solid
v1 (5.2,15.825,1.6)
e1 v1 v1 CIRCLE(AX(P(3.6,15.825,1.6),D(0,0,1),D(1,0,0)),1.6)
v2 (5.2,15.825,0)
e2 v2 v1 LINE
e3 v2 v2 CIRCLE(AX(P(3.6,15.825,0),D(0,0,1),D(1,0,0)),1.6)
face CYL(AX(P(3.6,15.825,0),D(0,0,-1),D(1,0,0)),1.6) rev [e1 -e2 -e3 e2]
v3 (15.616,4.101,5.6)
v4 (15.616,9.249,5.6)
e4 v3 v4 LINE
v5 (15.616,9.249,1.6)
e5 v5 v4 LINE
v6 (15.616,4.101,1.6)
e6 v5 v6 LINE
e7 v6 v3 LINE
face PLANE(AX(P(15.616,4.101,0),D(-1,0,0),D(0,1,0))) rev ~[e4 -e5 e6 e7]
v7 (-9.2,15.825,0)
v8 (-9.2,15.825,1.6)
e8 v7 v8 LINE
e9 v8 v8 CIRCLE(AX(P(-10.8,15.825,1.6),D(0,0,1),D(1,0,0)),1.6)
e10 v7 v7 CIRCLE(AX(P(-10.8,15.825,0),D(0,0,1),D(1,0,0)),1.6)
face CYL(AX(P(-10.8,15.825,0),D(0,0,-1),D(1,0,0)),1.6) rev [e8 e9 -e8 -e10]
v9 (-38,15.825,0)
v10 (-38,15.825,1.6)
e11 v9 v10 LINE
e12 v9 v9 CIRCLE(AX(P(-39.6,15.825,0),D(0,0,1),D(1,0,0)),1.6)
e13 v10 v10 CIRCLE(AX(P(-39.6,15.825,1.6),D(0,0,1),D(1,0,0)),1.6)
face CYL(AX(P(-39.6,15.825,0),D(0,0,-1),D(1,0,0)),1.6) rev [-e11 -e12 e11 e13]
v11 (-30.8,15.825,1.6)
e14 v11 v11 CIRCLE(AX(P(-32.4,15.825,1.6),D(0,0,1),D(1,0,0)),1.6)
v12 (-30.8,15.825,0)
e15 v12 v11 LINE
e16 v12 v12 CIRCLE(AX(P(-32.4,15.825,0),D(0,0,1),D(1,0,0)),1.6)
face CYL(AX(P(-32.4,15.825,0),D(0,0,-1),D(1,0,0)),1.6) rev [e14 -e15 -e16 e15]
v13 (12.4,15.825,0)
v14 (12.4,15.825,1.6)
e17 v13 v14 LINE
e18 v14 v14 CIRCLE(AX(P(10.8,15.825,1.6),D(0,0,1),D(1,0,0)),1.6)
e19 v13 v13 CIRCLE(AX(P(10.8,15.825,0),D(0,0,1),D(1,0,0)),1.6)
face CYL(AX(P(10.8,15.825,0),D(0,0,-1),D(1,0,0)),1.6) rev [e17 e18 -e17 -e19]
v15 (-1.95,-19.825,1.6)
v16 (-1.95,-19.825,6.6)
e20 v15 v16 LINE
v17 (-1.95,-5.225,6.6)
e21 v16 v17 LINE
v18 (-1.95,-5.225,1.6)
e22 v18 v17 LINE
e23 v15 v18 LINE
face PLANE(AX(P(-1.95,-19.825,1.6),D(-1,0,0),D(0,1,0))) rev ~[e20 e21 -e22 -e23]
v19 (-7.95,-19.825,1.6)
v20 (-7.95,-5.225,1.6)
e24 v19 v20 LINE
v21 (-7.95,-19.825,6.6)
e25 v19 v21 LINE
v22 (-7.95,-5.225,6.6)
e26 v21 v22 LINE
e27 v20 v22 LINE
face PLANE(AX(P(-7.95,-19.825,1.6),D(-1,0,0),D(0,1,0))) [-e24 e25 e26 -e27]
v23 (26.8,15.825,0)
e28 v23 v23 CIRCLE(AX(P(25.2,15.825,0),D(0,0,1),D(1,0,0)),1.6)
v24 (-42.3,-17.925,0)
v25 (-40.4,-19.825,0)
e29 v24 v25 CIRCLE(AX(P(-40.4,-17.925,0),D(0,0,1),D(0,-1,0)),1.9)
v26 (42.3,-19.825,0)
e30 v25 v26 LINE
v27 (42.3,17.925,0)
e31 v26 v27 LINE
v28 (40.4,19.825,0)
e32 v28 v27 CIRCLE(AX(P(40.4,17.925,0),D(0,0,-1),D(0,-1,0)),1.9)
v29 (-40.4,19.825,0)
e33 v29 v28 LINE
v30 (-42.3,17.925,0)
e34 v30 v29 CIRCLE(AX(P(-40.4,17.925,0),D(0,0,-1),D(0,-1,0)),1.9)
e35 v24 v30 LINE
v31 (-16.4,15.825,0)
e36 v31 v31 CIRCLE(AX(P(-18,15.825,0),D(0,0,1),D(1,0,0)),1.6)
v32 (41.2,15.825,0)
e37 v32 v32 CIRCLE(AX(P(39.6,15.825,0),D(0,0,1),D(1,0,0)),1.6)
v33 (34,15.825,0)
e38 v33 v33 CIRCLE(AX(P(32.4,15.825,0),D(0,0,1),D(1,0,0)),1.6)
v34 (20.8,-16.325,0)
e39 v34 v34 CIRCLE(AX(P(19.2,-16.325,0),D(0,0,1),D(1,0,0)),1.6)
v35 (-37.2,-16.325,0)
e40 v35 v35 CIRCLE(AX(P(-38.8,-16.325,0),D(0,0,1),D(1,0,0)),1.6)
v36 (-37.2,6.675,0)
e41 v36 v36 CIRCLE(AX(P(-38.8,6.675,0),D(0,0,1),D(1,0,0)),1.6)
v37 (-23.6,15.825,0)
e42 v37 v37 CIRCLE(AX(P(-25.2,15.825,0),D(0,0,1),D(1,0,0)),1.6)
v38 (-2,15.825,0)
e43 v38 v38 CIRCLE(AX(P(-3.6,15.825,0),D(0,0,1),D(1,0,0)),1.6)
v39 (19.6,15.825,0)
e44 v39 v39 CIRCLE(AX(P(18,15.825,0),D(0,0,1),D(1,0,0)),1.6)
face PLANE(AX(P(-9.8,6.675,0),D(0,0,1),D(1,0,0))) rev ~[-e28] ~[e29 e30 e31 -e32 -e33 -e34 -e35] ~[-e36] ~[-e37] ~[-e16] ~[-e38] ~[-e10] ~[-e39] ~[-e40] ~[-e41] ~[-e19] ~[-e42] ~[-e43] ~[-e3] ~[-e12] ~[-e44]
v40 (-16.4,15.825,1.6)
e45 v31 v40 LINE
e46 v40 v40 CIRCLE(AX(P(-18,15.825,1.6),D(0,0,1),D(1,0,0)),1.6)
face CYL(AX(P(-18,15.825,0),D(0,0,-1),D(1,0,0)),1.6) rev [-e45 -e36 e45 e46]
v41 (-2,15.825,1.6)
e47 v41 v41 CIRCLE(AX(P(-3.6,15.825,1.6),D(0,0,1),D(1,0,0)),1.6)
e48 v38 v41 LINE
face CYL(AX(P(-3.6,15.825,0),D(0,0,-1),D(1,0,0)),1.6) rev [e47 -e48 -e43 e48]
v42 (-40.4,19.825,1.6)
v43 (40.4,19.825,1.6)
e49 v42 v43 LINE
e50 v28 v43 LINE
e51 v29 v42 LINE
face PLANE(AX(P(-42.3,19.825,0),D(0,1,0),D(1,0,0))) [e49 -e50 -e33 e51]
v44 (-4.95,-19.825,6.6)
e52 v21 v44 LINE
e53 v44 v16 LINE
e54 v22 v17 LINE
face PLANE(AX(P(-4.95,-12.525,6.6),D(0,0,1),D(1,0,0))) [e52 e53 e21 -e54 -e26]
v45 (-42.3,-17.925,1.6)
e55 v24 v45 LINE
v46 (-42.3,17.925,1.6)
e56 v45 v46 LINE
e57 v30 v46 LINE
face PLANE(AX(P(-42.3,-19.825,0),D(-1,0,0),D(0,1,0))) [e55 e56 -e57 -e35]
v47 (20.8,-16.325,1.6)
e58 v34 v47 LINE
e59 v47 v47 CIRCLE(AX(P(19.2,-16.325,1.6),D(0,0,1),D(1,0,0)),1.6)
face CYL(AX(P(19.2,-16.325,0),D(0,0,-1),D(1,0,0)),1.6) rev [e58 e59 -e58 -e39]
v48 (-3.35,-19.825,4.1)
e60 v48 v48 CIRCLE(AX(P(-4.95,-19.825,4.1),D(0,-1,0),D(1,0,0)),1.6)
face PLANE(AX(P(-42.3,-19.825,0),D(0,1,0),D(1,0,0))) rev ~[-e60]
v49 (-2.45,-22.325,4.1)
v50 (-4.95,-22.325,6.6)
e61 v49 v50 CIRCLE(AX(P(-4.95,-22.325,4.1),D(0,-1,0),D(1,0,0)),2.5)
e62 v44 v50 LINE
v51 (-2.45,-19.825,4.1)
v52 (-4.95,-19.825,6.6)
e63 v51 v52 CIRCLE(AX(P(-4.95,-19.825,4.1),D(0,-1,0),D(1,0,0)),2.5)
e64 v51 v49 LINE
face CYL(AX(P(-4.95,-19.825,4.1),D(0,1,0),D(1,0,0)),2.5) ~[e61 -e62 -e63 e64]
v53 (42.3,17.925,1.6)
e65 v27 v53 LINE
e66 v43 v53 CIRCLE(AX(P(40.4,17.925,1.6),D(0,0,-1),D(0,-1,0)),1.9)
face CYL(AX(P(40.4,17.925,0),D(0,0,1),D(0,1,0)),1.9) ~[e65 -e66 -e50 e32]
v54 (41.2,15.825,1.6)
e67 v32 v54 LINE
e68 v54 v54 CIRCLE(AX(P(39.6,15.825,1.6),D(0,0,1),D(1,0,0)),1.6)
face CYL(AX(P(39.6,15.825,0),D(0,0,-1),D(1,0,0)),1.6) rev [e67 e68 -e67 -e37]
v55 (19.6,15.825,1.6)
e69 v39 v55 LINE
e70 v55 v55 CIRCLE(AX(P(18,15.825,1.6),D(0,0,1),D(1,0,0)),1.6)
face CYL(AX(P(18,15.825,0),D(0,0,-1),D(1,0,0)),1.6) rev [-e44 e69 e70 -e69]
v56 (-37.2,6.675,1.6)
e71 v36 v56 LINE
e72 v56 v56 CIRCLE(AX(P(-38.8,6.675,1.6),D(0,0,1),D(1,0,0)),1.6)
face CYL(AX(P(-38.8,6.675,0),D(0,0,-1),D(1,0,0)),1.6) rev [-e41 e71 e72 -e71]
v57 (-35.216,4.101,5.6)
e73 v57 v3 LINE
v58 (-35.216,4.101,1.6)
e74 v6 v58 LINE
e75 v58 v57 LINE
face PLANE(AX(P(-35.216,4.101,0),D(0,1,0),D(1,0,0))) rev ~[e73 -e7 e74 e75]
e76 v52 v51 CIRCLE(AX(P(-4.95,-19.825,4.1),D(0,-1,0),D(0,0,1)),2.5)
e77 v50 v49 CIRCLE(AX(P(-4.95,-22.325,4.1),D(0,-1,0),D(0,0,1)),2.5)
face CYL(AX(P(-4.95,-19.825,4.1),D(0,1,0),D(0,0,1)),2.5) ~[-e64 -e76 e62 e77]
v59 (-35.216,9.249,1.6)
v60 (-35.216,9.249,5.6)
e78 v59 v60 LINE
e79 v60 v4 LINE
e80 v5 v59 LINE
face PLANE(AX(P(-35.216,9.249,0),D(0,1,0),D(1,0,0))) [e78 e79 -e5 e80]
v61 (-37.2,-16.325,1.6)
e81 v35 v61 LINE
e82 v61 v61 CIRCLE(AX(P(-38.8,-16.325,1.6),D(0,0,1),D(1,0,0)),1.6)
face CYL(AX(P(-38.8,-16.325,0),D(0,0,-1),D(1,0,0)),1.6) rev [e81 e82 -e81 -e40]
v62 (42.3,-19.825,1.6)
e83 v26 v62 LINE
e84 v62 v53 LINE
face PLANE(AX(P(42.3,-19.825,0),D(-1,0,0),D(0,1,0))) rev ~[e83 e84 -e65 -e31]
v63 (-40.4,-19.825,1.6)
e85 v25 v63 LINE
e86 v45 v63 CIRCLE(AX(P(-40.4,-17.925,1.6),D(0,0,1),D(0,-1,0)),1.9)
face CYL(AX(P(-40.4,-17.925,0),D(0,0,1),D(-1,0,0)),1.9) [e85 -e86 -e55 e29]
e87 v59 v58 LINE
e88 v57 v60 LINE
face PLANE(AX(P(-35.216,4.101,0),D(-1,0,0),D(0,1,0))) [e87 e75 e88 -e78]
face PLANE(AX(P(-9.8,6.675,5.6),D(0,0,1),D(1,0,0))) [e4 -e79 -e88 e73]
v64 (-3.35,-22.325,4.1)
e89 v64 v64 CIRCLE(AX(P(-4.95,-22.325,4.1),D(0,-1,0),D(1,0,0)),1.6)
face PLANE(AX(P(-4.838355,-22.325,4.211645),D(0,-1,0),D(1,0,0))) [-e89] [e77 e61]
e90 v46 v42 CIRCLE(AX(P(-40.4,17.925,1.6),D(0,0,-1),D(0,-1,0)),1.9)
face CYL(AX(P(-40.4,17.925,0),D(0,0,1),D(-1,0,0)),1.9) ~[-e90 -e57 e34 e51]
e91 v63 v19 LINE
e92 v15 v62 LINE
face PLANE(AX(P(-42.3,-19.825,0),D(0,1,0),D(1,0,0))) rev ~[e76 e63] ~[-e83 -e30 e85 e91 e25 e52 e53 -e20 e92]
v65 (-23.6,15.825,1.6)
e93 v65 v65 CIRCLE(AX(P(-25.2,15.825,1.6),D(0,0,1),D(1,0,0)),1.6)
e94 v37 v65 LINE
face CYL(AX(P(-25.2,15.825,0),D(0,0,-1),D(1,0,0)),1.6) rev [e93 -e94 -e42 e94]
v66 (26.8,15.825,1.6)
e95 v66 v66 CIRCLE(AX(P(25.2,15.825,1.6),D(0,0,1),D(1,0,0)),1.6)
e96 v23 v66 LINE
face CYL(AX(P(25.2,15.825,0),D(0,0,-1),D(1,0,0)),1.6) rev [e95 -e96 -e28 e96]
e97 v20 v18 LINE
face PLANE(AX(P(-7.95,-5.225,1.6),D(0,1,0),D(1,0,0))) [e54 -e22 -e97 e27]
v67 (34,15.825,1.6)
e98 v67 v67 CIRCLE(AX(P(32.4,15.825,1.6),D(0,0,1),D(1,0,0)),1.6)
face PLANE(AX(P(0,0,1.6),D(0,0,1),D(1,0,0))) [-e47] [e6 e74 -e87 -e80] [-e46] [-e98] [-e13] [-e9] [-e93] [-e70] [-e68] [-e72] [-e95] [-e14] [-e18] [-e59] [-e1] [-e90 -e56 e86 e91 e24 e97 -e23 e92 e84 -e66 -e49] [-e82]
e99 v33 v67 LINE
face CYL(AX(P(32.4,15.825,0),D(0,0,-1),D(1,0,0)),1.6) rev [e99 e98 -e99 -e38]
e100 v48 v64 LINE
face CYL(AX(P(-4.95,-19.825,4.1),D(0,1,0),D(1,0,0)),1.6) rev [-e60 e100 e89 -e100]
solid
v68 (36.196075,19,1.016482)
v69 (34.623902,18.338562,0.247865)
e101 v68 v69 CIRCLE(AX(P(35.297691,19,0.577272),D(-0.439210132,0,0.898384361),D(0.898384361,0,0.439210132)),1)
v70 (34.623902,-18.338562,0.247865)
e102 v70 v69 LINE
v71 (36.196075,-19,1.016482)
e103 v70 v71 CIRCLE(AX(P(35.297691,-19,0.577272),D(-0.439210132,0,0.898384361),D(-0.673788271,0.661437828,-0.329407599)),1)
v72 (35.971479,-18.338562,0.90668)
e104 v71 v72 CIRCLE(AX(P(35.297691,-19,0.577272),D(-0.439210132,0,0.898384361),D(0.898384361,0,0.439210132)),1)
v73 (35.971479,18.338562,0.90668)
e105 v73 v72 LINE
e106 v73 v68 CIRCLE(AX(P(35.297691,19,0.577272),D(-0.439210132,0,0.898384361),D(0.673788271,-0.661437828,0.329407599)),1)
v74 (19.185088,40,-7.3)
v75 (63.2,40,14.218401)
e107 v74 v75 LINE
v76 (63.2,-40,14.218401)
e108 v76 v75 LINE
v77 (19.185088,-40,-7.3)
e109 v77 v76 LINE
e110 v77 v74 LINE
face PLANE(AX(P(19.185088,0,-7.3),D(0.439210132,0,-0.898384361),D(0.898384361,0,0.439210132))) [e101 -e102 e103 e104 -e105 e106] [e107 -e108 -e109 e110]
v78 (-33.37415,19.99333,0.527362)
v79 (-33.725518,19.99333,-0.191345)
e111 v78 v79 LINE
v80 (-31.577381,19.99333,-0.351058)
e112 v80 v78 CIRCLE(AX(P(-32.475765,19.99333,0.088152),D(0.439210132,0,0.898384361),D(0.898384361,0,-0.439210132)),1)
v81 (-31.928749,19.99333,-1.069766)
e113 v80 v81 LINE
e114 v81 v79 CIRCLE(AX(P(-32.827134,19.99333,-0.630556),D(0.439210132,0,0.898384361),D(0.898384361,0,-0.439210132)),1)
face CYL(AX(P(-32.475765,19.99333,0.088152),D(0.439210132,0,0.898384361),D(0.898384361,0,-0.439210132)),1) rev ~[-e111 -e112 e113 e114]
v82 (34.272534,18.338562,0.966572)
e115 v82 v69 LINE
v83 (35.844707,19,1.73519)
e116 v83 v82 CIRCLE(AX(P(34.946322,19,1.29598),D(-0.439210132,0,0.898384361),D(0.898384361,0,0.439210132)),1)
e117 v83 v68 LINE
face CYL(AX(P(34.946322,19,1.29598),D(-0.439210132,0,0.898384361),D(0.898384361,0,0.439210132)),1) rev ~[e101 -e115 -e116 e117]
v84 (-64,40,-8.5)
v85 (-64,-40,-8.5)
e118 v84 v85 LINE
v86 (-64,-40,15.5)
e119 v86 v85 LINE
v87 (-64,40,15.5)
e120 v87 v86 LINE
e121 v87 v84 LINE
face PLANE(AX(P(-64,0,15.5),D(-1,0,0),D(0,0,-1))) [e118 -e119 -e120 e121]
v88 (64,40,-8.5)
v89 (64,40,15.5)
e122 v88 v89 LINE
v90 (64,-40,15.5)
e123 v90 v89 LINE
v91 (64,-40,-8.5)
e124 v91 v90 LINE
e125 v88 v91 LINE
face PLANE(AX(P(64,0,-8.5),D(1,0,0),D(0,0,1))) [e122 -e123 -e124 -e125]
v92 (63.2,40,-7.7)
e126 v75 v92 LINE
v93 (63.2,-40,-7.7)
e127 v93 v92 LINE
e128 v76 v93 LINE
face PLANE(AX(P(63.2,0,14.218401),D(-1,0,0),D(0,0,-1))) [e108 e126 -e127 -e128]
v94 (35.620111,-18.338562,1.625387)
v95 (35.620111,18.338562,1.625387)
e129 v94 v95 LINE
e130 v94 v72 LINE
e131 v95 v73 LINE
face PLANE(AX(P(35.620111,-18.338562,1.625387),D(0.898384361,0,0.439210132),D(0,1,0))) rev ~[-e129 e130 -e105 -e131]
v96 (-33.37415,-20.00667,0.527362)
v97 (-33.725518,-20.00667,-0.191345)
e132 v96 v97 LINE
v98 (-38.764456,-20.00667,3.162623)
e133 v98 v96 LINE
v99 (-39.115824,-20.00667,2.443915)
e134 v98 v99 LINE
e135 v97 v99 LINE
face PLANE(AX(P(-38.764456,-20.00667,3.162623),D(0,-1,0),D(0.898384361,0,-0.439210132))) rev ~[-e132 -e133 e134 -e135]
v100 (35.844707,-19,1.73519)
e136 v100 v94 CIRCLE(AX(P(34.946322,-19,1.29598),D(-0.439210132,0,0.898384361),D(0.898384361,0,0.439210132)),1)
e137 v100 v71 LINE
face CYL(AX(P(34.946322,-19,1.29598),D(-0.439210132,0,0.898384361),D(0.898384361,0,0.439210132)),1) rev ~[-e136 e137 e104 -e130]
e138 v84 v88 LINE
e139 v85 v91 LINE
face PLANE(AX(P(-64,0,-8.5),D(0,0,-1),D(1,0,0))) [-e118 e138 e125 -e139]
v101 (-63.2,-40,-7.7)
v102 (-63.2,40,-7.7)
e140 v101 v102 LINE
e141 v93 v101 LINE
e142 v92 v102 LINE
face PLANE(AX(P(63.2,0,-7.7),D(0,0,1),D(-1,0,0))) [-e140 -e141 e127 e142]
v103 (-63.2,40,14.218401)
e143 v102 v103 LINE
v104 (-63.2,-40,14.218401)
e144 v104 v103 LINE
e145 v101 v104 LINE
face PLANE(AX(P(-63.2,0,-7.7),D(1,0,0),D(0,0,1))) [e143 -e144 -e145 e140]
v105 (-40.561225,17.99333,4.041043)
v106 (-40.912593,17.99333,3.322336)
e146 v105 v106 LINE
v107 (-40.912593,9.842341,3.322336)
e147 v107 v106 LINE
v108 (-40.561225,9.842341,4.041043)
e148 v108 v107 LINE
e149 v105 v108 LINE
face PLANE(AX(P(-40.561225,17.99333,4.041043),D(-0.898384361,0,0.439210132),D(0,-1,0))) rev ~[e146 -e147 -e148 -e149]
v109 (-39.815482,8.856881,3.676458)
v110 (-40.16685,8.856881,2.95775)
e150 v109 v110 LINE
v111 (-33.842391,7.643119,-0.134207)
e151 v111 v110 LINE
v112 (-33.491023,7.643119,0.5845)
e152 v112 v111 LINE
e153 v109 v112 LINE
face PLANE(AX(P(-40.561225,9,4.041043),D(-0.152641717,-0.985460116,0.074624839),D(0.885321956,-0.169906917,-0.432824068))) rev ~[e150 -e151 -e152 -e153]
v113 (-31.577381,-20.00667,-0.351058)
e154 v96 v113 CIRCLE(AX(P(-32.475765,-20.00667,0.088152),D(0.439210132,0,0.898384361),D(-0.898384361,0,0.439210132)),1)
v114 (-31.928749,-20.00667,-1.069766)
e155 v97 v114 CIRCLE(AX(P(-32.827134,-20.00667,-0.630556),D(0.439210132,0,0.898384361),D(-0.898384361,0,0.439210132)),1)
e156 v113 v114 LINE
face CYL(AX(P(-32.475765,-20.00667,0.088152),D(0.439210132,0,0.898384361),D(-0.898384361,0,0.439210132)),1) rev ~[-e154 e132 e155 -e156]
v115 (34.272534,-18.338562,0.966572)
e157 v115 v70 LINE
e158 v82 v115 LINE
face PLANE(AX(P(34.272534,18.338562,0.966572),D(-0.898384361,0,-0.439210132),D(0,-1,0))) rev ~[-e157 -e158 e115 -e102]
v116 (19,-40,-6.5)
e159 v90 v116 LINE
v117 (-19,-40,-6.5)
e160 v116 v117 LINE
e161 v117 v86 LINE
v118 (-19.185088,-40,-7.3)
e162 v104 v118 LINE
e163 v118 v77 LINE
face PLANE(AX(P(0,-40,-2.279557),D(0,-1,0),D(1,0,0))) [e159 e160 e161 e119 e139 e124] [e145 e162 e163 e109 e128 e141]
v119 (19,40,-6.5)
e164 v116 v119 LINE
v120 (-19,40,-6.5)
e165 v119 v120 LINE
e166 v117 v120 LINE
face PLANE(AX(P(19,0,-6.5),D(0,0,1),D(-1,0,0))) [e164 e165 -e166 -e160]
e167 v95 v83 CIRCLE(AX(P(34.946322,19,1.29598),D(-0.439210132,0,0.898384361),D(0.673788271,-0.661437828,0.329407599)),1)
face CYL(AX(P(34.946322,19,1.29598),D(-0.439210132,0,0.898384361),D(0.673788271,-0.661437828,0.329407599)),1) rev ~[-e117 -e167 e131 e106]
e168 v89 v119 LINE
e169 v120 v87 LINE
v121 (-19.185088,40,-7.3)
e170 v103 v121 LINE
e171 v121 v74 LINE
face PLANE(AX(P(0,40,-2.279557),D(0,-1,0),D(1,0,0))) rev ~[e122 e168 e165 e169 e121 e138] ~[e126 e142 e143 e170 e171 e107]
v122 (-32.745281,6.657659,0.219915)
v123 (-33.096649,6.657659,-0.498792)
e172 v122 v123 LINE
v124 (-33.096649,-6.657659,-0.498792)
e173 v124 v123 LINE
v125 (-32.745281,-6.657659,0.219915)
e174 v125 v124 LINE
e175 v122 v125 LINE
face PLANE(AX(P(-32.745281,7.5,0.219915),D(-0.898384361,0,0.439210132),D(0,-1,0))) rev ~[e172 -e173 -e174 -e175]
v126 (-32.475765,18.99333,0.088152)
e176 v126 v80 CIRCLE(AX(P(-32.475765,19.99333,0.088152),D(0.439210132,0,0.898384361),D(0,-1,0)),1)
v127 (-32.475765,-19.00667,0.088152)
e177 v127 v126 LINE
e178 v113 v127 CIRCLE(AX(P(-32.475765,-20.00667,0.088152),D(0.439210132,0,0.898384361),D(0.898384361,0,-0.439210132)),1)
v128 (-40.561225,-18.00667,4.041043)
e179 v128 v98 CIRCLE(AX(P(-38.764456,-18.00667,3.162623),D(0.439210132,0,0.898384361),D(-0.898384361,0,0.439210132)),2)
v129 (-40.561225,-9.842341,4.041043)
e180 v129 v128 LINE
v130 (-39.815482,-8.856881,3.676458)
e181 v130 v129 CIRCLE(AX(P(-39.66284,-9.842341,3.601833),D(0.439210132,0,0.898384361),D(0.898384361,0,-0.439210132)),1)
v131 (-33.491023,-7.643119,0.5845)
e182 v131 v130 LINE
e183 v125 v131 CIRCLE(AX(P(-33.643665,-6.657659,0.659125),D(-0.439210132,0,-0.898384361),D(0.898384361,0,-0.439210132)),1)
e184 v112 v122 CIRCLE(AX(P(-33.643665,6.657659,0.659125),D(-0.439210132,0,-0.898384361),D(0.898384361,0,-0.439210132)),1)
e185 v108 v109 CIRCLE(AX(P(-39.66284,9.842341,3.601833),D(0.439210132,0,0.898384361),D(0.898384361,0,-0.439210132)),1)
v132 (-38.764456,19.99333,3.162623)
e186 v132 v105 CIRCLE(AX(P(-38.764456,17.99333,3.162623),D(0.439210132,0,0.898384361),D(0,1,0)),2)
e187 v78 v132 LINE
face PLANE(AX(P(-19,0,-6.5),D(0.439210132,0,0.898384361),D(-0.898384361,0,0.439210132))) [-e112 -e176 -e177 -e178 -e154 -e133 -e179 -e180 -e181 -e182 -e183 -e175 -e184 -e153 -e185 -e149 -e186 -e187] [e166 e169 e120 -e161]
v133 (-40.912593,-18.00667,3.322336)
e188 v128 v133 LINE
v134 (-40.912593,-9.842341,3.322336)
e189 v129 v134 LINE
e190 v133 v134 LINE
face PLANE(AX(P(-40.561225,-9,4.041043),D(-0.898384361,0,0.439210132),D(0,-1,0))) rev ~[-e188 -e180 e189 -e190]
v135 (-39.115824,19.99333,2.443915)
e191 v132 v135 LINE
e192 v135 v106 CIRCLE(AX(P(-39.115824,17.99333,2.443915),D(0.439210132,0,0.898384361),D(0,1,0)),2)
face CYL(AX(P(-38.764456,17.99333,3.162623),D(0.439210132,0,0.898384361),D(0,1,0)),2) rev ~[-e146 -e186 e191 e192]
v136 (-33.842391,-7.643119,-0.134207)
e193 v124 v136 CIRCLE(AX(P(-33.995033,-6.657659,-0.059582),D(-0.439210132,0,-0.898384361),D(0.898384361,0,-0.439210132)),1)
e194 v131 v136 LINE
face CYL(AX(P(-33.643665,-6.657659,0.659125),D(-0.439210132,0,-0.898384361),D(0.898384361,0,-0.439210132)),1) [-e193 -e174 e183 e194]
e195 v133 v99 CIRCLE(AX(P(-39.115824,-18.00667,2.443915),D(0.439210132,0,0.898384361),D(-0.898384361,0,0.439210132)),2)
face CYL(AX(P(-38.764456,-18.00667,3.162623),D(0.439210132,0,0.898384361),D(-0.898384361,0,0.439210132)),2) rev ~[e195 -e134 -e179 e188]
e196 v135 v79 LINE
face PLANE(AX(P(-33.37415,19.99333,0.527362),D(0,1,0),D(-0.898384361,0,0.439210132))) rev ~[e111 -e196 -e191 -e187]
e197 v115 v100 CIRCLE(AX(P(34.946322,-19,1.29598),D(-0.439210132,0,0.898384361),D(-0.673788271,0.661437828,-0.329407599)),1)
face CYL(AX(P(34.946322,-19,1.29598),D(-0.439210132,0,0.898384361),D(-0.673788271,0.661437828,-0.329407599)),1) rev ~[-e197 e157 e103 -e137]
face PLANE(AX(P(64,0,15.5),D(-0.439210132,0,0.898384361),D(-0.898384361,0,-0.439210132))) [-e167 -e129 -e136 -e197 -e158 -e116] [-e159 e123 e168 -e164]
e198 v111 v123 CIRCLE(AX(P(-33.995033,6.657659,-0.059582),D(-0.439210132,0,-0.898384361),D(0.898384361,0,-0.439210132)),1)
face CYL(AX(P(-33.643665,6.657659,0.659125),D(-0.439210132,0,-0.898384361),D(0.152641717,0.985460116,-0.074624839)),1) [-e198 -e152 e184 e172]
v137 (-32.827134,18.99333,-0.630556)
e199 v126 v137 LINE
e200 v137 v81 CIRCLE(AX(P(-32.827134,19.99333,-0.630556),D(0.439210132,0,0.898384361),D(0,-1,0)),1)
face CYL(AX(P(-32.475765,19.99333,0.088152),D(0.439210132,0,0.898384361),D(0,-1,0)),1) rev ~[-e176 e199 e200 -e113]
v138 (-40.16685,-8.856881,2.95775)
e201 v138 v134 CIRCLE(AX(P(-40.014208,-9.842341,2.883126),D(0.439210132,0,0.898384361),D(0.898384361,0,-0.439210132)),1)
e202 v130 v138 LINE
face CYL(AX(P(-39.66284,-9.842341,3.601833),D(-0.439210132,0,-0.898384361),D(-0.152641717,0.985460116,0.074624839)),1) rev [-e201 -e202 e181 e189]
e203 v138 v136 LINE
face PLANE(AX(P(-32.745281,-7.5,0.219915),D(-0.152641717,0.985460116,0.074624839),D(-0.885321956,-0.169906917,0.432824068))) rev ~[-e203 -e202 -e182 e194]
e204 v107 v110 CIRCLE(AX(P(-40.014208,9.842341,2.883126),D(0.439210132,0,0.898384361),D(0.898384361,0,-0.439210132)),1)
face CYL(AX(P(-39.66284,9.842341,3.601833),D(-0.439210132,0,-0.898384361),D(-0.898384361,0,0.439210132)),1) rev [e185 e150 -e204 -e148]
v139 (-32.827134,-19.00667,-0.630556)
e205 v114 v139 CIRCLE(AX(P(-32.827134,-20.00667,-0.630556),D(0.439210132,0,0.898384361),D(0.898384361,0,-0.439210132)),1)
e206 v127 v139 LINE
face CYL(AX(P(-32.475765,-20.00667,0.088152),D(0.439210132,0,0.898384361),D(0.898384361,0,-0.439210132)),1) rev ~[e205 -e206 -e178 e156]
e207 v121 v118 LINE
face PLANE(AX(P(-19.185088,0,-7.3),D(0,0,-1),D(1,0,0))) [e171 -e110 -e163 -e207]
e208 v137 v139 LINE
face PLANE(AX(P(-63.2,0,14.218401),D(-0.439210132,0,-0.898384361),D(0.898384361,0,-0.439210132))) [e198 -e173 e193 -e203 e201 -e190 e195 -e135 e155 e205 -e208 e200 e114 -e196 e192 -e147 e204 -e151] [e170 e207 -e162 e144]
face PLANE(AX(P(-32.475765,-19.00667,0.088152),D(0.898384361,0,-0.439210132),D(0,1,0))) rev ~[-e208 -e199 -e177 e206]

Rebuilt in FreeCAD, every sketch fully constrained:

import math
import FreeCAD as App
import Part
import Sketcher


def edges_at(feature, points):
    """Names of the edges that pass closest to the given points."""
    edges = feature.Shape.Edges
    near = lambda p: min(range(len(edges)), key=lambda i: edges[i].distToShape(Part.Vertex(*p))[0])
    return sorted({f"Edge{near(p) + 1}" for p in points})

doc = App.newDocument("Part")
params = doc.addObject("Spreadsheet::Sheet", "Params")
for row, (alias, value) in enumerate([
    ("sketch1_diameter", "3.2 mm"),
    ("sketch1_width", "84.6 mm"),
    ("sketch1_height", "39.65 mm"),
    ("pad1_length", "1.6 mm"),
    ("fillet_radius", "1.9 mm"),
    ("sketch2_width", "6 mm"),
    ("sketch2_height", "14.6 mm"),
    ("pad2_length", "5 mm"),
    ("sketch3_diameter", "3.2 mm"),
    ("sketch3_radius", "2.5 mm"),
    ("pad3_length", "2.5 mm"),
    ("pad4_length", "5.6 mm"),
    ("sketch5_width", "128 mm"),
    ("sketch5_width2", "38 mm"),
    ("sketch5_height", "24 mm"),
    ("sketch5_width3", "126.4 mm"),
    ("pad5_length", "80 mm"),
    ("sketch6_radius", "1 mm"),
    ("sketch6_radius2", "2 mm"),
    ("sketch6_width", "6 mm"),
    ("sketch6_height", "38 mm"),
    ("sketch6_height2", "15 mm"),
    ("pocket1_length", "3 mm"),
    ("sketch7_radius", "1 mm"),
    ("pocket2_length", "3 mm"),
    ("fillet2_radius", "1 mm"),
], start=1):
    params.set(f"A{row}", alias)
    params.set(f"B{row}", "=" + value)
    params.setAlias(f"B{row}", alias)

body = doc.addObject("PartDesign::Body", "Body")

# Sketch on XY plane
sketch1 = body.newObject("Sketcher::SketchObject", "Sketch")
sketch1.AttachmentSupport = (doc.getObject("XY_Plane"), [""])
sketch1.MapMode = "FlatFace"
sketch1.addGeometry(Part.LineSegment(App.Vector(-42.3, 19.825, 0), App.Vector(-42.3, -19.825, 0)), False)
sketch1.addGeometry(Part.LineSegment(App.Vector(-42.3, -19.825, 0), App.Vector(42.3, -19.825, 0)), False)
sketch1.addGeometry(Part.LineSegment(App.Vector(42.3, -19.825, 0), App.Vector(42.3, 19.825, 0)), False)
sketch1.addGeometry(Part.LineSegment(App.Vector(42.3, 19.825, 0), App.Vector(-42.3, 19.825, 0)), False)
sketch1.addGeometry(Part.Circle(App.Vector(-38.8, -16.325, 0), App.Vector(0, 0, 1), 1.6), False)
sketch1.addGeometry(Part.Circle(App.Vector(19.2, -16.325, 0), App.Vector(0, 0, 1), 1.6), False)
sketch1.addGeometry(Part.Circle(App.Vector(-38.8, 6.675, 0), App.Vector(0, 0, 1), 1.6), False)
sketch1.addGeometry(Part.Circle(App.Vector(-39.6, 15.825, 0), App.Vector(0, 0, 1), 1.6), False)
sketch1.addGeometry(Part.Circle(App.Vector(-32.4, 15.825, 0), App.Vector(0, 0, 1), 1.6), False)
sketch1.addGeometry(Part.Circle(App.Vector(-25.2, 15.825, 0), App.Vector(0, 0, 1), 1.6), False)
sketch1.addGeometry(Part.Circle(App.Vector(-18, 15.825, 0), App.Vector(0, 0, 1), 1.6), False)
sketch1.addGeometry(Part.Circle(App.Vector(-10.8, 15.825, 0), App.Vector(0, 0, 1), 1.6), False)
sketch1.addGeometry(Part.Circle(App.Vector(-3.6, 15.825, 0), App.Vector(0, 0, 1), 1.6), False)
sketch1.addGeometry(Part.Circle(App.Vector(3.6, 15.825, 0), App.Vector(0, 0, 1), 1.6), False)
sketch1.addGeometry(Part.Circle(App.Vector(10.8, 15.825, 0), App.Vector(0, 0, 1), 1.6), False)
sketch1.addGeometry(Part.Circle(App.Vector(18, 15.825, 0), App.Vector(0, 0, 1), 1.6), False)
sketch1.addGeometry(Part.Circle(App.Vector(25.2, 15.825, 0), App.Vector(0, 0, 1), 1.6), False)
sketch1.addGeometry(Part.Circle(App.Vector(32.4, 15.825, 0), App.Vector(0, 0, 1), 1.6), False)
sketch1.addGeometry(Part.Circle(App.Vector(39.6, 15.825, 0), App.Vector(0, 0, 1), 1.6), False)
sketch1.addConstraint(Sketcher.Constraint("Coincident", 0, 2, 1, 1))
sketch1.addConstraint(Sketcher.Constraint("Coincident", 1, 2, 2, 1))
sketch1.addConstraint(Sketcher.Constraint("Coincident", 2, 2, 3, 1))
sketch1.addConstraint(Sketcher.Constraint("Coincident", 3, 2, 0, 1))
sketch1.addConstraint(Sketcher.Constraint("Vertical", 0))
sketch1.addConstraint(Sketcher.Constraint("Horizontal", 1))
sketch1.addConstraint(Sketcher.Constraint("Vertical", 2))
sketch1.addConstraint(Sketcher.Constraint("Horizontal", 3))
sketch1.addConstraint(Sketcher.Constraint("Equal", 4, 5))
sketch1.addConstraint(Sketcher.Constraint("Equal", 5, 6))
sketch1.addConstraint(Sketcher.Constraint("Equal", 6, 7))
sketch1.addConstraint(Sketcher.Constraint("Equal", 7, 8))
sketch1.addConstraint(Sketcher.Constraint("Equal", 8, 9))
sketch1.addConstraint(Sketcher.Constraint("Equal", 9, 10))
sketch1.addConstraint(Sketcher.Constraint("Equal", 10, 11))
sketch1.addConstraint(Sketcher.Constraint("Equal", 11, 12))
sketch1.addConstraint(Sketcher.Constraint("Equal", 12, 13))
sketch1.addConstraint(Sketcher.Constraint("Equal", 13, 14))
sketch1.addConstraint(Sketcher.Constraint("Equal", 14, 15))
sketch1.addConstraint(Sketcher.Constraint("Equal", 15, 16))
sketch1.addConstraint(Sketcher.Constraint("Equal", 16, 17))
sketch1.addConstraint(Sketcher.Constraint("Equal", 17, 18))
sketch1.addConstraint(Sketcher.Constraint("Symmetric", 0, 2, 2, 2, -1, 1))
sketch1.addConstraint(Sketcher.Constraint("Symmetric", 12, 3, 13, 3, -2))
sketch1.addConstraint(Sketcher.Constraint("Symmetric", 11, 3, 14, 3, -2))
sketch1.addConstraint(Sketcher.Constraint("Symmetric", 10, 3, 15, 3, -2))
sketch1.addConstraint(Sketcher.Constraint("Symmetric", 9, 3, 16, 3, -2))
sketch1.addConstraint(Sketcher.Constraint("Symmetric", 8, 3, 17, 3, -2))
sketch1.addConstraint(Sketcher.Constraint("Symmetric", 7, 3, 18, 3, -2))
sketch1.addConstraint(Sketcher.Constraint("Horizontal", 4, 3, 5, 3))
sketch1.addConstraint(Sketcher.Constraint("Horizontal", 7, 3, 8, 3))
sketch1.addConstraint(Sketcher.Constraint("Horizontal", 8, 3, 9, 3))
sketch1.addConstraint(Sketcher.Constraint("Horizontal", 9, 3, 10, 3))
sketch1.addConstraint(Sketcher.Constraint("Horizontal", 10, 3, 11, 3))
sketch1.addConstraint(Sketcher.Constraint("Horizontal", 11, 3, 12, 3))
sketch1.addConstraint(Sketcher.Constraint("Vertical", 4, 3, 6, 3))
sketch1.addConstraint(Sketcher.Constraint("Diameter", 4, 3.2))
sketch1.addConstraint(Sketcher.Constraint("DistanceX", 1, 1, 1, 2, 84.6))
sketch1.addConstraint(Sketcher.Constraint("DistanceX", 10, 3, -1, 1, 18.0))
sketch1.addConstraint(Sketcher.Constraint("DistanceX", 4, 3, 5, 3, 58.0))
sketch1.addConstraint(Sketcher.Constraint("DistanceY", 4, 3, 6, 3, 23.0))
sketch1.addConstraint(Sketcher.Constraint("DistanceX", 6, 3, 11, 3, 28.0))
sketch1.addConstraint(Sketcher.Constraint("DistanceX", 7, 3, 12, 3, 36.0))
sketch1.addConstraint(Sketcher.Constraint("DistanceX", 5, 3, 16, 3, 6.0))
sketch1.addConstraint(Sketcher.Constraint("DistanceY", 18, 3, 2, 2, 4.0))
sketch1.addConstraint(Sketcher.Constraint("DistanceY", 0, 2, 0, 1, 39.65))
sketch1.addConstraint(Sketcher.Constraint("DistanceX", 4, 3, -1, 1, 38.8))
sketch1.addConstraint(Sketcher.Constraint("DistanceX", 7, 3, -1, 1, 39.6))
sketch1.addConstraint(Sketcher.Constraint("DistanceX", 8, 3, -1, 1, 32.4))
sketch1.addConstraint(Sketcher.Constraint("DistanceY", 0, 2, 4, 3, 3.5))
sketch1.setExpression("Constraints[36]", "Params.sketch1_diameter")
sketch1.setExpression("Constraints[37]", "Params.sketch1_width")
sketch1.setExpression("Constraints[45]", "Params.sketch1_height")
pad1 = body.newObject("PartDesign::Pad", "Pad")
pad1.Profile = sketch1
pad1.setExpression("Length", "Params.pad1_length")
doc.recompute()

fillet = body.newObject("PartDesign::Fillet", "Fillet")
fillet.Base = (pad1, edges_at(pad1, [(-42.3, -19.825, 0.8), (-42.3, 19.825, 0.8), (42.3, 19.825, 0.8)]))
fillet.setExpression("Radius", "Params.fillet_radius")

# Sketch on XY plane
sketch2 = body.newObject("Sketcher::SketchObject", "Sketch001")
sketch2.AttachmentSupport = (doc.getObject("XY_Plane"), [""])
sketch2.MapMode = "FlatFace"
sketch2.AttachmentOffset = App.Placement(App.Vector(0, 0, 1.6), App.Rotation())
sketch2.addGeometry(Part.LineSegment(App.Vector(-7.95, -5.225, 0), App.Vector(-7.95, -19.825, 0)), False)
sketch2.addGeometry(Part.LineSegment(App.Vector(-7.95, -19.825, 0), App.Vector(-1.95, -19.825, 0)), False)
sketch2.addGeometry(Part.LineSegment(App.Vector(-1.95, -19.825, 0), App.Vector(-1.95, -5.225, 0)), False)
sketch2.addGeometry(Part.LineSegment(App.Vector(-1.95, -5.225, 0), App.Vector(-7.95, -5.225, 0)), False)
sketch2.addConstraint(Sketcher.Constraint("Coincident", 0, 2, 1, 1))
sketch2.addConstraint(Sketcher.Constraint("Coincident", 1, 2, 2, 1))
sketch2.addConstraint(Sketcher.Constraint("Coincident", 2, 2, 3, 1))
sketch2.addConstraint(Sketcher.Constraint("Coincident", 3, 2, 0, 1))
sketch2.addConstraint(Sketcher.Constraint("Vertical", 0))
sketch2.addConstraint(Sketcher.Constraint("Horizontal", 1))
sketch2.addConstraint(Sketcher.Constraint("Vertical", 2))
sketch2.addConstraint(Sketcher.Constraint("Horizontal", 3))
sketch2.addConstraint(Sketcher.Constraint("DistanceX", 1, 1, 1, 2, 6.0))
sketch2.addConstraint(Sketcher.Constraint("DistanceY", 0, 2, 0, 1, 14.6))
sketch2.addConstraint(Sketcher.Constraint("DistanceX", 0, 2, -1, 1, 7.95))
sketch2.addConstraint(Sketcher.Constraint("DistanceY", 0, 2, -1, 1, 19.825))
sketch2.setExpression("Constraints[8]", "Params.sketch2_width")
sketch2.setExpression("Constraints[9]", "Params.sketch2_height")
pad2 = body.newObject("PartDesign::Pad", "Pad001")
pad2.Profile = sketch2
pad2.setExpression("Length", "Params.pad2_length")

# Sketch on XZ plane
sketch3 = body.newObject("Sketcher::SketchObject", "Sketch002")
sketch3.AttachmentSupport = (doc.getObject("XZ_Plane"), [""])
sketch3.MapMode = "FlatFace"
sketch3.AttachmentOffset = App.Placement(App.Vector(0, 0, 19.825), App.Rotation())
sketch3.addGeometry(Part.ArcOfCircle(Part.Circle(App.Vector(-4.95, 4.1, 0), App.Vector(0, 0, 1), 2.5), math.radians(90), math.radians(360)), False)
sketch3.addGeometry(Part.ArcOfCircle(Part.Circle(App.Vector(-4.95, 4.1, 0), App.Vector(0, 0, 1), 2.5), math.radians(0), math.radians(90)), False)
sketch3.addGeometry(Part.Circle(App.Vector(-4.95, 4.1, 0), App.Vector(0, 0, 1), 1.6), False)
sketch3.addConstraint(Sketcher.Constraint("Tangent", 0, 1, 1, 2))
sketch3.addConstraint(Sketcher.Constraint("Coincident", 1, 1, 0, 2))
sketch3.addConstraint(Sketcher.Constraint("Coincident", 2, 3, 0, 3))
sketch3.addConstraint(Sketcher.Constraint("Horizontal", 2, 3, 1, 1))
sketch3.addConstraint(Sketcher.Constraint("Vertical", 2, 3, 0, 1))
sketch3.addConstraint(Sketcher.Constraint("Diameter", 2, 3.2))
sketch3.addConstraint(Sketcher.Constraint("Radius", 0, 2.5))
sketch3.addConstraint(Sketcher.Constraint("DistanceY", -1, 1, 0, 3, 4.1))
sketch3.addConstraint(Sketcher.Constraint("DistanceX", 0, 3, -1, 1, 4.95))
sketch3.setExpression("Constraints[5]", "Params.sketch3_diameter")
sketch3.setExpression("Constraints[6]", "Params.sketch3_radius")
pad3 = body.newObject("PartDesign::Pad", "Pad002")
pad3.Profile = sketch3
pad3.setExpression("Length", "Params.pad3_length")

# Sketch on XY plane
sketch4 = body.newObject("Sketcher::SketchObject", "Sketch003")
sketch4.AttachmentSupport = (doc.getObject("XY_Plane"), [""])
sketch4.MapMode = "FlatFace"
sketch4.addGeometry(Part.LineSegment(App.Vector(-35.216, 9.249, 0), App.Vector(-35.216, 4.101, 0)), False)
sketch4.addGeometry(Part.LineSegment(App.Vector(-35.216, 4.101, 0), App.Vector(15.616, 4.101, 0)), False)
sketch4.addGeometry(Part.LineSegment(App.Vector(15.616, 4.101, 0), App.Vector(15.616, 9.249, 0)), False)
sketch4.addGeometry(Part.LineSegment(App.Vector(15.616, 9.249, 0), App.Vector(-35.216, 9.249, 0)), False)
sketch4.addConstraint(Sketcher.Constraint("Coincident", 0, 2, 1, 1))
sketch4.addConstraint(Sketcher.Constraint("Coincident", 1, 2, 2, 1))
sketch4.addConstraint(Sketcher.Constraint("Coincident", 2, 2, 3, 1))
sketch4.addConstraint(Sketcher.Constraint("Coincident", 3, 2, 0, 1))
sketch4.addConstraint(Sketcher.Constraint("Vertical", 0))
sketch4.addConstraint(Sketcher.Constraint("Horizontal", 1))
sketch4.addConstraint(Sketcher.Constraint("Vertical", 2))
sketch4.addConstraint(Sketcher.Constraint("Horizontal", 3))
sketch4.addConstraint(Sketcher.Constraint("DistanceX", 1, 1, 1, 2, 50.832))
sketch4.addConstraint(Sketcher.Constraint("DistanceY", 0, 2, 0, 1, 5.148))
sketch4.addConstraint(Sketcher.Constraint("DistanceX", 0, 2, -1, 1, 35.216))
sketch4.addConstraint(Sketcher.Constraint("DistanceY", -1, 1, 0, 2, 4.101))
pad4 = body.newObject("PartDesign::Pad", "Pad003")
pad4.Profile = sketch4
pad4.setExpression("Length", "Params.pad4_length")
body2 = doc.addObject("PartDesign::Body", "Body001")

# Sketch on XZ plane
sketch5 = body2.newObject("Sketcher::SketchObject", "Sketch004")
sketch5.AttachmentSupport = (doc.getObject("XZ_Plane001"), [""])
sketch5.MapMode = "FlatFace"
sketch5.addGeometry(Part.LineSegment(App.Vector(-19, -6.5, 0), App.Vector(-64, 15.5, 0)), False)
sketch5.addGeometry(Part.LineSegment(App.Vector(-64, 15.5, 0), App.Vector(-64, -8.5, 0)), False)
sketch5.addGeometry(Part.LineSegment(App.Vector(-64, -8.5, 0), App.Vector(64, -8.5, 0)), False)
sketch5.addGeometry(Part.LineSegment(App.Vector(64, -8.5, 0), App.Vector(64, 15.5, 0)), False)
sketch5.addGeometry(Part.LineSegment(App.Vector(64, 15.5, 0), App.Vector(19, -6.5, 0)), False)
sketch5.addGeometry(Part.LineSegment(App.Vector(19, -6.5, 0), App.Vector(-19, -6.5, 0)), False)
sketch5.addGeometry(Part.LineSegment(App.Vector(-63.2, 14.218401, 0), App.Vector(-19.185088, -7.3, 0)), False)
sketch5.addGeometry(Part.LineSegment(App.Vector(-19.185088, -7.3, 0), App.Vector(19.185088, -7.3, 0)), False)
sketch5.addGeometry(Part.LineSegment(App.Vector(19.185088, -7.3, 0), App.Vector(63.2, 14.218401, 0)), False)
sketch5.addGeometry(Part.LineSegment(App.Vector(63.2, 14.218401, 0), App.Vector(63.2, -7.7, 0)), False)
sketch5.addGeometry(Part.LineSegment(App.Vector(63.2, -7.7, 0), App.Vector(-63.2, -7.7, 0)), False)
sketch5.addGeometry(Part.LineSegment(App.Vector(-63.2, -7.7, 0), App.Vector(-63.2, 14.218401, 0)), False)
sketch5.addConstraint(Sketcher.Constraint("Coincident", 0, 2, 1, 1))
sketch5.addConstraint(Sketcher.Constraint("Coincident", 1, 2, 2, 1))
sketch5.addConstraint(Sketcher.Constraint("Coincident", 2, 2, 3, 1))
sketch5.addConstraint(Sketcher.Constraint("Coincident", 3, 2, 4, 1))
sketch5.addConstraint(Sketcher.Constraint("Coincident", 4, 2, 5, 1))
sketch5.addConstraint(Sketcher.Constraint("Coincident", 5, 2, 0, 1))
sketch5.addConstraint(Sketcher.Constraint("Coincident", 6, 2, 7, 1))
sketch5.addConstraint(Sketcher.Constraint("Coincident", 7, 2, 8, 1))
sketch5.addConstraint(Sketcher.Constraint("Coincident", 8, 2, 9, 1))
sketch5.addConstraint(Sketcher.Constraint("Coincident", 9, 2, 10, 1))
sketch5.addConstraint(Sketcher.Constraint("Coincident", 10, 2, 11, 1))
sketch5.addConstraint(Sketcher.Constraint("Coincident", 11, 2, 6, 1))
sketch5.addConstraint(Sketcher.Constraint("Vertical", 1))
sketch5.addConstraint(Sketcher.Constraint("Horizontal", 2))
sketch5.addConstraint(Sketcher.Constraint("Vertical", 3))
sketch5.addConstraint(Sketcher.Constraint("Horizontal", 5))
sketch5.addConstraint(Sketcher.Constraint("Horizontal", 7))
sketch5.addConstraint(Sketcher.Constraint("Vertical", 9))
sketch5.addConstraint(Sketcher.Constraint("Horizontal", 10))
sketch5.addConstraint(Sketcher.Constraint("Vertical", 11))
sketch5.addConstraint(Sketcher.Constraint("Symmetric", 0, 2, 3, 2, -2))
sketch5.addConstraint(Sketcher.Constraint("Symmetric", 8, 2, 11, 2, -2))
sketch5.addConstraint(Sketcher.Constraint("Parallel", 0, 6))
sketch5.addConstraint(Sketcher.Constraint("Parallel", 4, 8))
sketch5.addConstraint(Sketcher.Constraint("Equal", 0, 4))
sketch5.addConstraint(Sketcher.Constraint("DistanceX", 2, 1, 2, 2, 128.0))
sketch5.addConstraint(Sketcher.Constraint("DistanceX", 5, 2, 5, 1, 38.0))
sketch5.addConstraint(Sketcher.Constraint("DistanceY", 1, 2, 1, 1, 24.0))
sketch5.addConstraint(Sketcher.Constraint("DistanceX", 10, 2, 10, 1, 126.4))
sketch5.addConstraint(Sketcher.Constraint("DistanceY", 2, 2, 4, 2, 2.0))
sketch5.addConstraint(Sketcher.Constraint("DistanceY", -1, 1, 0, 2, 15.5))
sketch5.addConstraint(Sketcher.Constraint("DistanceY", 6, 2, -1, 1, 7.3))
sketch5.addConstraint(Sketcher.Constraint("DistanceY", 9, 2, -1, 1, 7.7))
sketch5.addConstraint(Sketcher.Constraint("DistanceY", 9, 2, 9, 1, 21.918401))
sketch5.setExpression("Constraints[25]", "Params.sketch5_width")
sketch5.setExpression("Constraints[26]", "Params.sketch5_width2")
sketch5.setExpression("Constraints[27]", "Params.sketch5_height")
sketch5.setExpression("Constraints[28]", "Params.sketch5_width3")
pad5 = body2.newObject("PartDesign::Pad", "Pad004")
pad5.Profile = sketch5
pad5.setExpression("Length", "Params.pad5_length")
pad5.Midplane = True

# Sketch on an angled plane
sketch6 = body2.newObject("Sketcher::SketchObject", "Sketch005")
sketch6.Placement = App.Placement(App.Vector(-6.229972, 0, -12.743125), App.Rotation(App.Vector(0.898384361, 0, -0.439210132), App.Vector(0, 1, 0), App.Vector(0.439210132, 0, 0.898384361), "ZXY"))
sketch6.addGeometry(Part.ArcOfCircle(Part.Circle(App.Vector(-29.214437, -20.00667, 0), App.Vector(0, 0, 1), 1), math.radians(180), math.radians(360)), False)
sketch6.addGeometry(Part.ArcOfCircle(Part.Circle(App.Vector(-29.214437, -20.00667, 0), App.Vector(0, 0, 1), 1), math.radians(0), math.radians(90)), False)
sketch6.addGeometry(Part.LineSegment(App.Vector(-29.214437, -19.00667, 0), App.Vector(-29.214437, 18.99333, 0)), False)
sketch6.addGeometry(Part.ArcOfCircle(Part.Circle(App.Vector(-29.214437, 19.99333, 0), App.Vector(0, 0, 1), 1), math.radians(-90), math.radians(0)), False)
sketch6.addGeometry(Part.ArcOfCircle(Part.Circle(App.Vector(-29.214437, 19.99333, 0), App.Vector(0, 0, 1), 1), math.radians(0), math.radians(180)), False)
sketch6.addGeometry(Part.LineSegment(App.Vector(-30.214437, 19.99333, 0), App.Vector(-36.214437, 19.99333, 0)), False)
sketch6.addGeometry(Part.ArcOfCircle(Part.Circle(App.Vector(-36.214437, 17.99333, 0), App.Vector(0, 0, 1), 2), math.radians(90), math.radians(180)), False)
sketch6.addGeometry(Part.LineSegment(App.Vector(-38.214437, 17.99333, 0), App.Vector(-38.214437, 9, 0)), False)
sketch6.addGeometry(Part.LineSegment(App.Vector(-38.214437, 9, 0), App.Vector(-29.514437, 7.5, 0)), False)
sketch6.addGeometry(Part.LineSegment(App.Vector(-29.514437, 7.5, 0), App.Vector(-29.514437, -7.5, 0)), False)
sketch6.addGeometry(Part.LineSegment(App.Vector(-29.514437, -7.5, 0), App.Vector(-38.214437, -9, 0)), False)
sketch6.addGeometry(Part.LineSegment(App.Vector(-38.214437, -9, 0), App.Vector(-38.214437, -18.00667, 0)), False)
sketch6.addGeometry(Part.ArcOfCircle(Part.Circle(App.Vector(-36.214437, -18.00667, 0), App.Vector(0, 0, 1), 2), math.radians(180), math.radians(270)), False)
sketch6.addGeometry(Part.LineSegment(App.Vector(-36.214437, -20.00667, 0), App.Vector(-30.214437, -20.00667, 0)), False)
sketch6.addConstraint(Sketcher.Constraint("Tangent", 0, 2, 1, 1))
sketch6.addConstraint(Sketcher.Constraint("Coincident", 1, 2, 2, 1))
sketch6.addConstraint(Sketcher.Constraint("Coincident", 2, 2, 3, 1))
sketch6.addConstraint(Sketcher.Constraint("Tangent", 3, 2, 4, 1))
sketch6.addConstraint(Sketcher.Constraint("Coincident", 4, 2, 5, 1))
sketch6.addConstraint(Sketcher.Constraint("Tangent", 5, 2, 6, 1))
sketch6.addConstraint(Sketcher.Constraint("Tangent", 6, 2, 7, 1))
sketch6.addConstraint(Sketcher.Constraint("Coincident", 7, 2, 8, 1))
sketch6.addConstraint(Sketcher.Constraint("Coincident", 8, 2, 9, 1))
sketch6.addConstraint(Sketcher.Constraint("Coincident", 9, 2, 10, 1))
sketch6.addConstraint(Sketcher.Constraint("Coincident", 10, 2, 11, 1))
sketch6.addConstraint(Sketcher.Constraint("Tangent", 11, 2, 12, 1))
sketch6.addConstraint(Sketcher.Constraint("Tangent", 12, 2, 13, 1))
sketch6.addConstraint(Sketcher.Constraint("Coincident", 13, 2, 0, 1))
sketch6.addConstraint(Sketcher.Constraint("Vertical", 2))
sketch6.addConstraint(Sketcher.Constraint("Horizontal", 5))
sketch6.addConstraint(Sketcher.Constraint("Vertical", 7))
sketch6.addConstraint(Sketcher.Constraint("Vertical", 9))
sketch6.addConstraint(Sketcher.Constraint("Vertical", 11))
sketch6.addConstraint(Sketcher.Constraint("Horizontal", 13))
sketch6.addConstraint(Sketcher.Constraint("Equal", 0, 1))
sketch6.addConstraint(Sketcher.Constraint("Equal", 1, 3))
sketch6.addConstraint(Sketcher.Constraint("Equal", 3, 4))
sketch6.addConstraint(Sketcher.Constraint("Equal", 6, 12))
sketch6.addConstraint(Sketcher.Constraint("Symmetric", 7, 2, 10, 2, -1))
sketch6.addConstraint(Sketcher.Constraint("Horizontal", 1, 3, 0, 2))
sketch6.addConstraint(Sketcher.Constraint("Horizontal", 4, 3, 3, 2))
sketch6.addConstraint(Sketcher.Constraint("Horizontal", 3, 2, 4, 2))
sketch6.addConstraint(Sketcher.Constraint("Horizontal", 0, 2, 12, 2))
sketch6.addConstraint(Sketcher.Constraint("Vertical", 1, 3, 3, 3))
sketch6.addConstraint(Sketcher.Constraint("Vertical", 4, 3, 1, 2))
sketch6.addConstraint(Sketcher.Constraint("Equal", 8, 10))
sketch6.addConstraint(Sketcher.Constraint("Radius", 0, 1.0))
sketch6.addConstraint(Sketcher.Constraint("Radius", 6, 2.0))
sketch6.addConstraint(Sketcher.Constraint("DistanceX", 5, 2, 5, 1, 6.0))
sketch6.addConstraint(Sketcher.Constraint("DistanceY", 2, 1, 2, 2, 38.0))
sketch6.addConstraint(Sketcher.Constraint("DistanceY", 9, 2, 9, 1, 15.0))
sketch6.addConstraint(Sketcher.Constraint("DistanceY", -1, 1, 7, 2, 9.0))
sketch6.addConstraint(Sketcher.Constraint("DistanceX", 7, 2, 8, 2, 8.7))
sketch6.addConstraint(Sketcher.Constraint("DistanceY", 7, 2, 7, 1, 8.99333))
sketch6.addConstraint(Sketcher.Constraint("DistanceX", 0, 3, -1, 1, 29.214437))
sketch6.setExpression("Constraints[32]", "Params.sketch6_radius")
sketch6.setExpression("Constraints[33]", "Params.sketch6_radius2")
sketch6.setExpression("Constraints[34]", "Params.sketch6_width")
sketch6.setExpression("Constraints[35]", "Params.sketch6_height")
sketch6.setExpression("Constraints[36]", "Params.sketch6_height2")
pocket1 = body2.newObject("PartDesign::Pocket", "Pocket")
pocket1.Profile = sketch6
pocket1.setExpression("Length", "Params.pocket1_length")

# Sketch on an angled plane
sketch7 = body2.newObject("Sketcher::SketchObject", "Sketch006")
sketch7.Placement = App.Placement(App.Vector(6.229972, 0, -12.743125), App.Rotation(App.Vector(0.898384361, 0, 0.439210132), App.Vector(0, 1, 0), App.Vector(-0.439210132, 0, 0.898384361), "ZXY"))
sketch7.addGeometry(Part.ArcOfCircle(Part.Circle(App.Vector(31.964437, -19, 0), App.Vector(0, 0, 1), 1), math.radians(138.590378), math.radians(360)), False)
sketch7.addGeometry(Part.ArcOfCircle(Part.Circle(App.Vector(31.964437, -19, 0), App.Vector(0, 0, 1), 1), math.radians(0), math.radians(41.409622)), False)
sketch7.addGeometry(Part.LineSegment(App.Vector(32.714437, -18.338562, 0), App.Vector(32.714437, 18.338562, 0)), False)
sketch7.addGeometry(Part.ArcOfCircle(Part.Circle(App.Vector(31.964437, 19, 0), App.Vector(0, 0, 1), 1), math.radians(-41.409622), math.radians(0)), False)
sketch7.addGeometry(Part.ArcOfCircle(Part.Circle(App.Vector(31.964437, 19, 0), App.Vector(0, 0, 1), 1), math.radians(0), math.radians(221.409622)), False)
sketch7.addGeometry(Part.LineSegment(App.Vector(31.214437, 18.338562, 0), App.Vector(31.214437, -18.338562, 0)), False)
sketch7.addConstraint(Sketcher.Constraint("Tangent", 0, 2, 1, 1))
sketch7.addConstraint(Sketcher.Constraint("Coincident", 1, 2, 2, 1))
sketch7.addConstraint(Sketcher.Constraint("Coincident", 2, 2, 3, 1))
sketch7.addConstraint(Sketcher.Constraint("Tangent", 3, 2, 4, 1))
sketch7.addConstraint(Sketcher.Constraint("Coincident", 4, 2, 5, 1))
sketch7.addConstraint(Sketcher.Constraint("Coincident", 5, 2, 0, 1))
sketch7.addConstraint(Sketcher.Constraint("Vertical", 2))
sketch7.addConstraint(Sketcher.Constraint("Vertical", 5))
sketch7.addConstraint(Sketcher.Constraint("Equal", 0, 1))
sketch7.addConstraint(Sketcher.Constraint("Equal", 1, 3))
sketch7.addConstraint(Sketcher.Constraint("Equal", 3, 4))
sketch7.addConstraint(Sketcher.Constraint("Symmetric", 0, 3, 3, 3, -1))
sketch7.addConstraint(Sketcher.Constraint("Horizontal", 1, 3, 0, 2))
sketch7.addConstraint(Sketcher.Constraint("Horizontal", 4, 3, 3, 2))
sketch7.addConstraint(Sketcher.Constraint("Horizontal", 2, 2, 4, 2))
sketch7.addConstraint(Sketcher.Constraint("Radius", 0, 1.0))
sketch7.addConstraint(Sketcher.Constraint("DistanceY", 0, 3, -1, 1, 19.0))
sketch7.addConstraint(Sketcher.Constraint("DistanceX", 4, 2, 2, 2, 1.5))
sketch7.addConstraint(Sketcher.Constraint("DistanceX", -1, 1, 0, 3, 31.964437))
sketch7.setExpression("Constraints[15]", "Params.sketch7_radius")
pocket2 = body2.newObject("PartDesign::Pocket", "Pocket001")
pocket2.Profile = sketch7
pocket2.setExpression("Length", "Params.pocket2_length")
doc.recompute()

fillet2 = body2.newObject("PartDesign::Fillet", "Fillet001")
fillet2.Base = (pocket2, edges_at(pocket2, [
    (-40.737, -9, 3.682),
    (-40.737, 9, 3.682),
    (-32.921, 7.5, -0.139),
    (-32.921, -7.5, -0.139),
]))
fillet2.setExpression("Radius", "Params.fillet2_radius")
body3 = doc.addObject("PartDesign::Body", "Body002")
doc.recompute()

body3.BaseFeature = body2
doc.recompute()
body4 = doc.addObject("PartDesign::Body", "Body003")
doc.recompute()

body4.BaseFeature = body2
doc.recompute()
body2.Visibility = False
body3.Visibility = False

doc.recompute()
